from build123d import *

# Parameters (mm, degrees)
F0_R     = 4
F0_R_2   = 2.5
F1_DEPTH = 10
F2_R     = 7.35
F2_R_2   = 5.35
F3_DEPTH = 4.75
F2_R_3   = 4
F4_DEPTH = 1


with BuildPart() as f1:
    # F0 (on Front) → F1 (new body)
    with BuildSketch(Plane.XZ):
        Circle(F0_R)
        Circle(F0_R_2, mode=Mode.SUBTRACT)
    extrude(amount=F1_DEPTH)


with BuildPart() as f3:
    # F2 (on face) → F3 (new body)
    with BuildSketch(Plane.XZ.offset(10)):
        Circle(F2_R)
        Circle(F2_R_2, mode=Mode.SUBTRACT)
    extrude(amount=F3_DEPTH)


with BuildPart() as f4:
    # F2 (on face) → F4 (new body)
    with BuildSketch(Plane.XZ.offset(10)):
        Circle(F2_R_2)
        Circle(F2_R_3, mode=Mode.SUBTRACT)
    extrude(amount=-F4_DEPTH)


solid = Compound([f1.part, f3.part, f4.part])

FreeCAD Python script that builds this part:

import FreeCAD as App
import Part
import Sketcher
Q = App.Units.Quantity

doc = App.newDocument("Part")
body = doc.addObject("PartDesign::Body", "Body")

sketch1 = body.newObject("Sketcher::SketchObject", "Sketch")
sketch1.AttachmentSupport = (doc.getObject("XZ_Plane"), [""])
sketch1.MapMode = "FlatFace"
sketch1.addGeometry([
    Part.Circle(App.Vector(0, 0, 0), App.Vector(0, 0, 1), 4),
    Part.Circle(App.Vector(0, 0, 0), App.Vector(0, 0, 1), 2.5),
], False)
sketch1.addConstraint([
    Sketcher.Constraint("Coincident", 0, 3, -1, 1),
    Sketcher.Constraint("Coincident", 1, 3, -1, 1),
    Sketcher.Constraint("Diameter", 0, Q("8 mm")),
    Sketcher.Constraint("Diameter", 1, Q("5 mm")),
])
pad1 = body.newObject("PartDesign::Pad", "Pad")
pad1.Profile = sketch1
pad1.Length = 10
body2 = doc.addObject("PartDesign::Body", "Body001")

sketch2 = body2.newObject("Sketcher::SketchObject", "Sketch001")
sketch2.AttachmentSupport = (doc.getObject("XZ_Plane001"), [""])
sketch2.MapMode = "FlatFace"
sketch2.AttachmentOffset = App.Placement(App.Vector(0, 0, 10), App.Rotation())
sketch2.addGeometry([
    Part.Circle(App.Vector(0, 0, 0), App.Vector(0, 0, 1), 7),
    Part.Circle(App.Vector(0, 0, 0), App.Vector(0, 0, 1), 5),
], False)
sketch2.addConstraint([
    Sketcher.Constraint("Coincident", 0, 3, -1, 1),
    Sketcher.Constraint("Coincident", 1, 3, -1, 1),
    Sketcher.Constraint("Diameter", 0, Q("14.7 mm")),
    Sketcher.Constraint("Diameter", 1, Q("10.7 mm")),
])
pad2 = body2.newObject("PartDesign::Pad", "Pad001")
pad2.Profile = sketch2
pad2.Length = 4.75
body3 = doc.addObject("PartDesign::Body", "Body002")

sketch3 = body3.newObject("Sketcher::SketchObject", "Sketch002")
sketch3.AttachmentSupport = (doc.getObject("XZ_Plane002"), [""])
sketch3.MapMode = "FlatFace"
sketch3.AttachmentOffset = App.Placement(App.Vector(0, 0, 10), App.Rotation())
sketch3.addGeometry([
    Part.Circle(App.Vector(0, 0, 0), App.Vector(0, 0, 1), 5.3),
    Part.Circle(App.Vector(0, 0, 0), App.Vector(0, 0, 1), 4),
], False)
sketch3.addConstraint([
    Sketcher.Constraint("Coincident", 0, 3, -1, 1),
    Sketcher.Constraint("Coincident", 1, 3, -1, 1),
    Sketcher.Constraint("Diameter", 1, Q("8 mm")),
    Sketcher.Constraint("Diameter", 0, Q("10.7 mm")),
])
pad3 = body3.newObject("PartDesign::Pad", "Pad002")
pad3.Profile = sketch3
pad3.Length = 1
pad3.Reversed = True

doc.recompute()
